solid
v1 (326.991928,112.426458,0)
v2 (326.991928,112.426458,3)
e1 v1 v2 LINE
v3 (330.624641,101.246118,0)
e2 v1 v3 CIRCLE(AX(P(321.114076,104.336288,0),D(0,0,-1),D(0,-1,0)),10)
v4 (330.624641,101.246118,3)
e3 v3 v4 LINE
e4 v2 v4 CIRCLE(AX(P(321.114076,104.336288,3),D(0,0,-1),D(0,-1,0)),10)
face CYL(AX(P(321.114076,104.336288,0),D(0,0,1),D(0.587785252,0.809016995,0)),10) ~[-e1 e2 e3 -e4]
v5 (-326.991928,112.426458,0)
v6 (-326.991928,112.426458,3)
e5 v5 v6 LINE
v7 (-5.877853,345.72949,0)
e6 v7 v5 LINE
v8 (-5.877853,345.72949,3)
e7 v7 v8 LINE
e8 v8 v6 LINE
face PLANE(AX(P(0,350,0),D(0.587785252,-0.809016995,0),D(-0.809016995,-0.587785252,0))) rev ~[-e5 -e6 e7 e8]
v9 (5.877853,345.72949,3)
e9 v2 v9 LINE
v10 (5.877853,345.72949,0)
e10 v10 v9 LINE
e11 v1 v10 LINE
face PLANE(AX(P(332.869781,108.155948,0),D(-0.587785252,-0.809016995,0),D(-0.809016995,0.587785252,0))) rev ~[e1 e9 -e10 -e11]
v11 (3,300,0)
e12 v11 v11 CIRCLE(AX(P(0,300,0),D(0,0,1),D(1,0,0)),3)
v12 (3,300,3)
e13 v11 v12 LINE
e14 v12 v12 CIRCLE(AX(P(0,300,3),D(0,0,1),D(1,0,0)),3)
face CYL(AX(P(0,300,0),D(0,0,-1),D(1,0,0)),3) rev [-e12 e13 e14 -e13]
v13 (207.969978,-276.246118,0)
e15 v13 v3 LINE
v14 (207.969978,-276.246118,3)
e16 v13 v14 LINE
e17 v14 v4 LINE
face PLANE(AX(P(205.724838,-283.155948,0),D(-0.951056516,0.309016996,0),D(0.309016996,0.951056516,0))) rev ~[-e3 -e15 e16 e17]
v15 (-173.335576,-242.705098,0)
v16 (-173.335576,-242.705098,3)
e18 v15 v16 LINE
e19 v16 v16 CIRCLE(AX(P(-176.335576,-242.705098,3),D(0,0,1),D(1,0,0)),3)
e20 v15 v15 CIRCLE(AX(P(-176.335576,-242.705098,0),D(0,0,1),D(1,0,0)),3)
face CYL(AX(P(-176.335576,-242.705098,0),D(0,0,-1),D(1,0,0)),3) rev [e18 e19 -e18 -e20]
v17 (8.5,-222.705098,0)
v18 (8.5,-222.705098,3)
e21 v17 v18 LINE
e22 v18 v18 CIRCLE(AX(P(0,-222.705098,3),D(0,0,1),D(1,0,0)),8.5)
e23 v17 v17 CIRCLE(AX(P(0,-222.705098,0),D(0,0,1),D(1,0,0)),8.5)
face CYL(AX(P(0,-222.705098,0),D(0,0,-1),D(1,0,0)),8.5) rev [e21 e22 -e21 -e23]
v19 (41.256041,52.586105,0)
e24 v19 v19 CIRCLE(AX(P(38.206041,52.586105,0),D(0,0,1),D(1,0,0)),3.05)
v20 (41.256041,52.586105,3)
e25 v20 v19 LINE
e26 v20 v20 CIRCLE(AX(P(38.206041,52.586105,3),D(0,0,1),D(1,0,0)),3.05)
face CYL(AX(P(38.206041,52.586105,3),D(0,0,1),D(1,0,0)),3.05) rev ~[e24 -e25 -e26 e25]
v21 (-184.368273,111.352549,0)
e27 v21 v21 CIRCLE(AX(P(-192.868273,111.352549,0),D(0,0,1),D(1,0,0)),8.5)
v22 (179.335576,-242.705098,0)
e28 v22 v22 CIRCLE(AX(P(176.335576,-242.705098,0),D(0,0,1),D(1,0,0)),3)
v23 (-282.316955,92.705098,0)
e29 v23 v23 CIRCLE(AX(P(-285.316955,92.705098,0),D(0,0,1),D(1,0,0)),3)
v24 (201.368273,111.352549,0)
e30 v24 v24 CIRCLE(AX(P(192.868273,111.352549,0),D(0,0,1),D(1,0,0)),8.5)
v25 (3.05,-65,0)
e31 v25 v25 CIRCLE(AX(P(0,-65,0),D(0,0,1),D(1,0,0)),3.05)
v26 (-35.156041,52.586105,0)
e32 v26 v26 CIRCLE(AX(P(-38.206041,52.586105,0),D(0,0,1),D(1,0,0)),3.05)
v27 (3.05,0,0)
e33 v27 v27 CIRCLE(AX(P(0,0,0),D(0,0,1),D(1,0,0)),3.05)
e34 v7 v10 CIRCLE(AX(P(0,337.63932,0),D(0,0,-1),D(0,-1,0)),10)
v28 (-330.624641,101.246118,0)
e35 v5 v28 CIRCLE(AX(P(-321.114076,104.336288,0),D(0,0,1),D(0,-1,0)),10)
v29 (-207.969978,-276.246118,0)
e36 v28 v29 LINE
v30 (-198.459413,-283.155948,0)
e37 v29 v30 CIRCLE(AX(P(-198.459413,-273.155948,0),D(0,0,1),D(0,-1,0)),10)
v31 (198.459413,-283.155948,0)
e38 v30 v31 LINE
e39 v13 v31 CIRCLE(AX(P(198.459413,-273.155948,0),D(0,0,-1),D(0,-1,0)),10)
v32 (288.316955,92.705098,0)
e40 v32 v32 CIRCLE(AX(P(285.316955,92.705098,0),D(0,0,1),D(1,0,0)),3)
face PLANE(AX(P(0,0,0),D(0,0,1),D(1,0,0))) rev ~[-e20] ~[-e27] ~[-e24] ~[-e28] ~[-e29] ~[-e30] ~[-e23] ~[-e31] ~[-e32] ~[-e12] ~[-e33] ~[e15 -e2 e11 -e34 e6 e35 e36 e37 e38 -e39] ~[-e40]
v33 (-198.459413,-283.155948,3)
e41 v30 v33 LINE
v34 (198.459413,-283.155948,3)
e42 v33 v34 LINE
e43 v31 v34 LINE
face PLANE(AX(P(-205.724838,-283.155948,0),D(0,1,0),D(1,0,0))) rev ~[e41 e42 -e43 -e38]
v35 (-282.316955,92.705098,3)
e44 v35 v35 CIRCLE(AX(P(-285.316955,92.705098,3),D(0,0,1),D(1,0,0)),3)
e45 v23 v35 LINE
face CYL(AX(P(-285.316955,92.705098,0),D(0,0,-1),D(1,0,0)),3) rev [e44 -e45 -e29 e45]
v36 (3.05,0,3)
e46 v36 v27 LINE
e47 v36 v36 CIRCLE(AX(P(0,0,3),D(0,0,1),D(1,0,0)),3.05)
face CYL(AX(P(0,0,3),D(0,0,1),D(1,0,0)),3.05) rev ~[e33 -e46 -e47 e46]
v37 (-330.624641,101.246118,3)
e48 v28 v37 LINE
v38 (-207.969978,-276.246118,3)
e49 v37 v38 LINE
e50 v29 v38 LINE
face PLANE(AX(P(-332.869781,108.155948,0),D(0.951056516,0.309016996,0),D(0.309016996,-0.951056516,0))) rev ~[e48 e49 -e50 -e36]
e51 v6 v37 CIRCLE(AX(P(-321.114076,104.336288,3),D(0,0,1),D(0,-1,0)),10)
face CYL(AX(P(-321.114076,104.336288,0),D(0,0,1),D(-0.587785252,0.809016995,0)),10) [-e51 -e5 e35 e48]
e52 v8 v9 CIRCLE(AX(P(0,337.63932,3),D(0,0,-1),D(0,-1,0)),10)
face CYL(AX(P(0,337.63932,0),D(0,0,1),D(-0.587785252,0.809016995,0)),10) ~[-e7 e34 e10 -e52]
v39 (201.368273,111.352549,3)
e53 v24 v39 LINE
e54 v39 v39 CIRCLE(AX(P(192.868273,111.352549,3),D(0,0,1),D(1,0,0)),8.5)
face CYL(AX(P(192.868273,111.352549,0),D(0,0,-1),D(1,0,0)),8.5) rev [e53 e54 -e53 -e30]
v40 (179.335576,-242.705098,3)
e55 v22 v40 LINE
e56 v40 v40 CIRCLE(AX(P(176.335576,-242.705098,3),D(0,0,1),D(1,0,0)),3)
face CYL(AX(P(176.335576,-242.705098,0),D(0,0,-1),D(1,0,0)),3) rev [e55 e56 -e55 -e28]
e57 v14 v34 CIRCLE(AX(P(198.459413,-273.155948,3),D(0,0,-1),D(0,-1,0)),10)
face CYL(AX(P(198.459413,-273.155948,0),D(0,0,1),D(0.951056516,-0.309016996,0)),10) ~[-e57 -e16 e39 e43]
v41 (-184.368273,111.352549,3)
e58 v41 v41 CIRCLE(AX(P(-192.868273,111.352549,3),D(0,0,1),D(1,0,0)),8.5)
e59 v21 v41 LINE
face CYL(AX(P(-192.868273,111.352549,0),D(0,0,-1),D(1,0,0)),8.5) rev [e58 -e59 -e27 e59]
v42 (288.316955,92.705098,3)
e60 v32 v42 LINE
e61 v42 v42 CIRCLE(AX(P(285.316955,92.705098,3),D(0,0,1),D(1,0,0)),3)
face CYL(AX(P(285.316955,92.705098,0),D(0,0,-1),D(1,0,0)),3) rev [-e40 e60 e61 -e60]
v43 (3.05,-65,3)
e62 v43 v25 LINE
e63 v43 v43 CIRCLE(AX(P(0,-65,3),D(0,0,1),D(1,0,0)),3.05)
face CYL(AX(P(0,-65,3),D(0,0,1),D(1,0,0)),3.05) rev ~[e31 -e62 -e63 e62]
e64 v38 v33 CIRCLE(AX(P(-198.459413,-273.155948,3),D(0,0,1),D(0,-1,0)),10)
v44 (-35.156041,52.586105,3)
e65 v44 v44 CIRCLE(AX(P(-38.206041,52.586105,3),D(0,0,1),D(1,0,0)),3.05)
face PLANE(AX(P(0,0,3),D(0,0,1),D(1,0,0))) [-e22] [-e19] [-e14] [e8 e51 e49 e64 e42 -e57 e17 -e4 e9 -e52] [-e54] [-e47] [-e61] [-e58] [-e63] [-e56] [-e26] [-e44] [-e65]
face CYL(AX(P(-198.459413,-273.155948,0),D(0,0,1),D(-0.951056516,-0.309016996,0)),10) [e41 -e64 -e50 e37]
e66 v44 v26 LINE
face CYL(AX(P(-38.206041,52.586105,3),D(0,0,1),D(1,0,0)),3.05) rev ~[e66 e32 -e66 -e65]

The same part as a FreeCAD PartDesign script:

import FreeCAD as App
import Part
import Sketcher
Q = App.Units.Quantity


def edges_at(feature, points):
    """Names of the edges that pass closest to the given points."""
    edges = feature.Shape.Edges
    near = lambda p: min(range(len(edges)), key=lambda i: edges[i].distToShape(Part.Vertex(*p))[0])
    return sorted({f"Edge{near(p) + 1}" for p in points})


def add_polygon(sketch, points):
    """Adds a closed chain of lines whose ends are joined by coincident constraints."""
    first, n = sketch.GeometryCount, len(points)
    for a, b in zip(points, points[1:] + points[:1]):
        sketch.addGeometry(Part.LineSegment(App.Vector(*a, 0), App.Vector(*b, 0)), False)
    for i in range(n):
        sketch.addConstraint(Sketcher.Constraint("Coincident", first + i, 2, first + (i + 1) % n, 1))

doc = App.newDocument("Part")
body = doc.addObject("PartDesign::Body", "Body")

# Sketch on XY plane
sketch1 = body.newObject("Sketcher::SketchObject", "Sketch")
sketch1.AttachmentSupport = (doc.getObject("XY_Plane"), [""])
sketch1.MapMode = "FlatFace"
add_polygon(sketch1, [(0, 350), (-332.9, 108.2), (-205.7, -283.2), (205.7, -283.2), (332.9, 108.2)])  # lines 0-4
sketch1.addGeometry(Part.Circle(App.Vector(-176.3, -242.7, 0), App.Vector(0, 0, 1), 3), False)  # 5
sketch1.addGeometry(Part.Circle(App.Vector(0, -222.7, 0), App.Vector(0, 0, 1), 8.5), False)  # 6
sketch1.addGeometry(Part.Circle(App.Vector(176.3, -242.7, 0), App.Vector(0, 0, 1), 3), False)  # 7
sketch1.addGeometry(Part.Circle(App.Vector(-285.3, 92.7, 0), App.Vector(0, 0, 1), 3), False)  # 8
sketch1.addGeometry(Part.Circle(App.Vector(-192.9, 111.4, 0), App.Vector(0, 0, 1), 8.5), False)  # 9
sketch1.addGeometry(Part.Circle(App.Vector(285.3, 92.7, 0), App.Vector(0, 0, 1), 3), False)  # 10
sketch1.addGeometry(Part.Circle(App.Vector(192.9, 111.4, 0), App.Vector(0, 0, 1), 8.5), False)  # 11
sketch1.addGeometry(Part.Circle(App.Vector(0, 300, 0), App.Vector(0, 0, 1), 3), False)  # 12
sketch1.addConstraint(Sketcher.Constraint("Horizontal", 2))
sketch1.addConstraint(Sketcher.Constraint("Equal", 5, 7))
sketch1.addConstraint(Sketcher.Constraint("Equal", 7, 8))
sketch1.addConstraint(Sketcher.Constraint("Equal", 6, 9))
sketch1.addConstraint(Sketcher.Constraint("Equal", 8, 10))
sketch1.addConstraint(Sketcher.Constraint("Equal", 9, 11))
sketch1.addConstraint(Sketcher.Constraint("Equal", 10, 12))
sketch1.addConstraint(Sketcher.Constraint("Symmetric", 5, 3, 7, 3, -2))
sketch1.addConstraint(Sketcher.Constraint("Symmetric", 8, 3, 10, 3, -2))
sketch1.addConstraint(Sketcher.Constraint("Symmetric", 9, 3, 11, 3, -2))
sketch1.addConstraint(Sketcher.Constraint("Symmetric", 0, 2, 3, 2, -2))
sketch1.addConstraint(Sketcher.Constraint("PointOnObject", 6, 3, -2))
sketch1.addConstraint(Sketcher.Constraint("PointOnObject", 12, 3, -2))
sketch1.addConstraint(Sketcher.Constraint("PointOnObject", 4, 2, -2))
sketch1.addConstraint(Sketcher.Constraint("Equal", 0, 1))
sketch1.addConstraint(Sketcher.Constraint("Equal", 1, 3))
sketch1.addConstraint(Sketcher.Constraint("Diameter", 5, Q("6 mm")))
sketch1.addConstraint(Sketcher.Constraint("Diameter", 6, Q("17 mm")))
sketch1.addConstraint(Sketcher.Constraint("Angle", 0, Q("-144 deg")))
sketch1.addConstraint(Sketcher.Constraint("Angle", 1, Q("-72 deg")))
sketch1.addConstraint(Sketcher.Constraint("DistanceY", -1, 1, 12, 3, Q("300 mm")))
sketch1.addConstraint(Sketcher.Constraint("DistanceY", -1, 1, 4, 2, Q("350 mm")))
sketch1.addConstraint(Sketcher.Constraint("DistanceY", 5, 3, 6, 3, Q("20 mm")))
sketch1.addConstraint(Sketcher.Constraint("DistanceY", 5, 3, -1, 1, Q("242.705098 mm")))
sketch1.addConstraint(Sketcher.Constraint("DistanceY", -1, 1, 8, 3, Q("92.705098 mm")))
sketch1.addConstraint(Sketcher.Constraint("DistanceY", 0, 2, 9, 3, Q("3.196601 mm")))
sketch1.addConstraint(Sketcher.Constraint("DistanceX", 2, 1, 2, 2, Q("411.449676 mm")))
sketch1.addConstraint(Sketcher.Constraint("DistanceX", 5, 3, 7, 3, Q("352.671152 mm")))
sketch1.addConstraint(Sketcher.Constraint("DistanceX", 8, 3, 5, 3, Q("108.981379 mm")))
sketch1.addConstraint(Sketcher.Constraint("DistanceX", 9, 3, 7, 3, Q("369.203849 mm")))
pad1 = body.newObject("PartDesign::Pad", "Pad")
pad1.Profile = sketch1
pad1.Length = 3

# Sketch on XY plane
sketch2 = body.newObject("Sketcher::SketchObject", "Sketch001")
sketch2.AttachmentSupport = (doc.getObject("XY_Plane"), [""])
sketch2.MapMode = "FlatFace"
sketch2.AttachmentOffset = App.Placement(App.Vector(0, 0, 3), App.Rotation())
sketch2.addGeometry(Part.Circle(App.Vector(-38.2, 52.6, 0), App.Vector(0, 0, 1), 3), False)
sketch2.addGeometry(Part.Circle(App.Vector(38.2, 52.6, 0), App.Vector(0, 0, 1), 3), False)
sketch2.addGeometry(Part.Circle(App.Vector(0, -65, 0), App.Vector(0, 0, 1), 3), False)
sketch2.addGeometry(Part.Circle(App.Vector(0, 0, 0), App.Vector(0, 0, 1), 3), False)
sketch2.addConstraint(Sketcher.Constraint("Coincident", 3, 3, -1, 1))
sketch2.addConstraint(Sketcher.Constraint("Equal", 0, 1))
sketch2.addConstraint(Sketcher.Constraint("Equal", 1, 2))
sketch2.addConstraint(Sketcher.Constraint("Equal", 2, 3))
sketch2.addConstraint(Sketcher.Constraint("Symmetric", 0, 3, 1, 3, -2))
sketch2.addConstraint(Sketcher.Constraint("PointOnObject", 2, 3, -2))
sketch2.addConstraint(Sketcher.Constraint("Diameter", 0, Q("6.1 mm")))
sketch2.addConstraint(Sketcher.Constraint("DistanceY", 2, 3, -1, 1, Q("65 mm")))
sketch2.addConstraint(Sketcher.Constraint("DistanceX", 0, 3, -1, 1, Q("38.206041 mm")))
sketch2.addConstraint(Sketcher.Constraint("DistanceY", -1, 1, 0, 3, Q("52.586105 mm")))
pocket1 = body.newObject("PartDesign::Pocket", "Pocket")
pocket1.Profile = sketch2
pocket1.Type = "ThroughAll"
doc.recompute()

fillet = body.newObject("PartDesign::Fillet", "Fillet")
fillet.Base = (pocket1, edges_at(pocket1, [
    (-332.87, 108.156, 1.5),
    (0, 350, 1.5),
    (332.87, 108.156, 1.5),
    (205.725, -283.156, 1.5),
    (-205.725, -283.156, 1.5),
]))
fillet.Radius = 10

doc.recompute()
